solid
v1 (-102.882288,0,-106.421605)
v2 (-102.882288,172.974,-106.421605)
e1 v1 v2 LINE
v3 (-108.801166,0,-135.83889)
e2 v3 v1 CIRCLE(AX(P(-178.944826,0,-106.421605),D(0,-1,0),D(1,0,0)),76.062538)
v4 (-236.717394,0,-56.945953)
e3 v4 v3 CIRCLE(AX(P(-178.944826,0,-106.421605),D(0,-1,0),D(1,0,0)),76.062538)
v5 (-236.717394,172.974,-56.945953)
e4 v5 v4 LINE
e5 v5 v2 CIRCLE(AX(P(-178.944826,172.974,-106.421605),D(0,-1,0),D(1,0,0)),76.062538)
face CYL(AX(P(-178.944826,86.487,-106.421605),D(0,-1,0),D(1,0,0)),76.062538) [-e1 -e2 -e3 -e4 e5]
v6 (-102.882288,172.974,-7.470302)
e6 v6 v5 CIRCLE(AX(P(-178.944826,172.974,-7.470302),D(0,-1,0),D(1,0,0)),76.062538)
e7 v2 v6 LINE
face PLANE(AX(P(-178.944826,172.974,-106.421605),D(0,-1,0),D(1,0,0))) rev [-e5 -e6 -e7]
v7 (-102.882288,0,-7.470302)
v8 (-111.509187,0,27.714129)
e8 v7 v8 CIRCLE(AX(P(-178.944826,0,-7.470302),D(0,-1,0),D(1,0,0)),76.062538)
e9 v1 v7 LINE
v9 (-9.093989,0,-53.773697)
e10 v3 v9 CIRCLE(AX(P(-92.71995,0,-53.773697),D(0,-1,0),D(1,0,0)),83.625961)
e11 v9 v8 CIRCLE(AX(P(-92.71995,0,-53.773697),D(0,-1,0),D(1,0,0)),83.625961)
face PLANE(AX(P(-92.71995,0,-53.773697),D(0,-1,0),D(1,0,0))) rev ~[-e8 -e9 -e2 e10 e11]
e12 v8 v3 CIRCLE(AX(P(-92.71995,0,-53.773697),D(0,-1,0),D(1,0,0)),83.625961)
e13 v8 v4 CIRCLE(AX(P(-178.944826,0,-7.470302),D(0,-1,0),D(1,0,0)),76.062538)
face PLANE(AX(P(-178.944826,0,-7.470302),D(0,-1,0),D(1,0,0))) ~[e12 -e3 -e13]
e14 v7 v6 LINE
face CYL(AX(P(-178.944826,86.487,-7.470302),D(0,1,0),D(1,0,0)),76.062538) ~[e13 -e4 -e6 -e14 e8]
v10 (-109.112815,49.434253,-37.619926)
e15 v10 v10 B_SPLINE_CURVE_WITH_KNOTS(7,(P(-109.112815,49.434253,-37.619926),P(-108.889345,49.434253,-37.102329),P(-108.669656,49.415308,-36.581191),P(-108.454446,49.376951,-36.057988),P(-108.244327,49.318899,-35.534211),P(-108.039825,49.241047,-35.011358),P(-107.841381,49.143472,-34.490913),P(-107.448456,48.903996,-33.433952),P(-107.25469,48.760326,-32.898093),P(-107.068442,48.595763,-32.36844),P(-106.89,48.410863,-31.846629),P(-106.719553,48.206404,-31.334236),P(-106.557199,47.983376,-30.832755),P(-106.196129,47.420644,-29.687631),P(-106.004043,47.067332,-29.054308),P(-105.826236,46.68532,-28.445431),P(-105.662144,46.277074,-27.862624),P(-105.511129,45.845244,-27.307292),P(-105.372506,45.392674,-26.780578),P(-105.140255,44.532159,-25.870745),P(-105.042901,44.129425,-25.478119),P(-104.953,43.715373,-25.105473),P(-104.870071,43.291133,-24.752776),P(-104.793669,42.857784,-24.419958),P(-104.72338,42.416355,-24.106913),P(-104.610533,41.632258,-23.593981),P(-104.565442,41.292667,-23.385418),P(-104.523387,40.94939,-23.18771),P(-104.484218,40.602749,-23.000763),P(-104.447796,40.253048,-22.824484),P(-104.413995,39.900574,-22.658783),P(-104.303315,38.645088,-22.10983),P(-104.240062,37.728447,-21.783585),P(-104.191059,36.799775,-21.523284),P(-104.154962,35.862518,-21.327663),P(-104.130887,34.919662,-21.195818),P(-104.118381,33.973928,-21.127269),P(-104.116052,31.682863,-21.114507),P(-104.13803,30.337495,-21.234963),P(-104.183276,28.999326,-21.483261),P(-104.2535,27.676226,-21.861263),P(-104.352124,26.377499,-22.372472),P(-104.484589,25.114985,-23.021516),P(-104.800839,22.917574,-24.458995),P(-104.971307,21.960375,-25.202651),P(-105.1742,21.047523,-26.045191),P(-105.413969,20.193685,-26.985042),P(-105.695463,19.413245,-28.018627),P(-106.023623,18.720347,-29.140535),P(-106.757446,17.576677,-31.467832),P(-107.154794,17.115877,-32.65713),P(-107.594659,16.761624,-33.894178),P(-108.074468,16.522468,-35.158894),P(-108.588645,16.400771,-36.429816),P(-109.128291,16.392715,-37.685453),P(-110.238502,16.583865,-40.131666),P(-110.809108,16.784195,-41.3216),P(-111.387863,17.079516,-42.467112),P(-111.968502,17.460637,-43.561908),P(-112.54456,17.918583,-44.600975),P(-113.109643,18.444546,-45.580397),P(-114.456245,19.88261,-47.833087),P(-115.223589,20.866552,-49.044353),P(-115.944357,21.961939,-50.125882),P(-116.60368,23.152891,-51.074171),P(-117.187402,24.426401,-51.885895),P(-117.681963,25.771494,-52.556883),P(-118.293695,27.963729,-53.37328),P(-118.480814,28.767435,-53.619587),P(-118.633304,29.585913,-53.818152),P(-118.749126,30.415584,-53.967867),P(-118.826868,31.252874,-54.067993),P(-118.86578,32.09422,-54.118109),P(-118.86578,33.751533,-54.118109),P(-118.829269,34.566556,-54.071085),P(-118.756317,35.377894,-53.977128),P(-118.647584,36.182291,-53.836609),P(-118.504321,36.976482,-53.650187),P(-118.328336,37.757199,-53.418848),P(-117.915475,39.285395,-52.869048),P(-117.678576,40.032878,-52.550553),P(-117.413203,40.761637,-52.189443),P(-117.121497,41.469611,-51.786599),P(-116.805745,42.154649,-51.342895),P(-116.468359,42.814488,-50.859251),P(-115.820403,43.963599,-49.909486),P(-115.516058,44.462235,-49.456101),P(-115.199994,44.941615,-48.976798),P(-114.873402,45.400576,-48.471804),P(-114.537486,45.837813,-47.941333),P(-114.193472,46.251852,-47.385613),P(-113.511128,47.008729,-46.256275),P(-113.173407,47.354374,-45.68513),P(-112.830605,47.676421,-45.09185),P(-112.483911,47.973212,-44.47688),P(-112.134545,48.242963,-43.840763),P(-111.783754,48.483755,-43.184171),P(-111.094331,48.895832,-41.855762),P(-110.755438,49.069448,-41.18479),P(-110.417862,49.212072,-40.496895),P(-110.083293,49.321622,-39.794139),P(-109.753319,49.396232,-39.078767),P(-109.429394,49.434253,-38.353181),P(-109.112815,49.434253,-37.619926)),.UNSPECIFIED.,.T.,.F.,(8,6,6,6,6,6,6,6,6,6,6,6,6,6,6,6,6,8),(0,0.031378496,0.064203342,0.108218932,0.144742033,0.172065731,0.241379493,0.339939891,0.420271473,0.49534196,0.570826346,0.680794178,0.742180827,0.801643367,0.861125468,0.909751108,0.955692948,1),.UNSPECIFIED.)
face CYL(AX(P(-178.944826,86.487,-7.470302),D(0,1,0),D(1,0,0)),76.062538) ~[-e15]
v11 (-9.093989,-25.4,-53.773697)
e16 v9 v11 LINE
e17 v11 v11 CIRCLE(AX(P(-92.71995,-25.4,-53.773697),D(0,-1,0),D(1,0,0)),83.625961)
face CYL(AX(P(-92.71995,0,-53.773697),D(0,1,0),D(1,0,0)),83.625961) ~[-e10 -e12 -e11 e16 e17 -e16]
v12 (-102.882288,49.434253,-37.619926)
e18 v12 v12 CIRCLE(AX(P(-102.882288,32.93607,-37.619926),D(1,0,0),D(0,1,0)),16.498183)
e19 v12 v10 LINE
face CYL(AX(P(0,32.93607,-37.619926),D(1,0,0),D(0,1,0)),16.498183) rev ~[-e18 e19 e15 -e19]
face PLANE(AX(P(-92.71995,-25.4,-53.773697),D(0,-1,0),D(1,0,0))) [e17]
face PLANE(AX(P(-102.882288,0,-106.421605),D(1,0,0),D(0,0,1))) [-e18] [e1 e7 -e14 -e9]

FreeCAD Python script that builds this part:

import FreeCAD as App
import Part
import Sketcher

V = App.Vector
Q = App.Units.Quantity


def add_polygon(sketch, points):
    """Adds a closed chain of lines whose ends are joined by coincident constraints."""
    first, n = sketch.GeometryCount, len(points)
    for a, b in zip(points, points[1:] + points[:1]):
        sketch.addGeometry(Part.LineSegment(App.Vector(*a, 0), App.Vector(*b, 0)), False)
    for i in range(n):
        sketch.addConstraint(Sketcher.Constraint("Coincident", first + i, 2, first + (i + 1) % n, 1))

doc = App.newDocument("Part")
body = doc.addObject("PartDesign::Body", "Body")

# Sketch on XZ plane
sketch1 = body.newObject("Sketcher::SketchObject", "Sketch")
sketch1.AttachmentSupport = (doc.getObject("XZ_Plane"), [""])
sketch1.MapMode = "FlatFace"
add_polygon(sketch1, [(-179, -7), (-179, -106), (-103, -106), (-103, -7)])  # lines 0-3
sketch1.addConstraint([
    Sketcher.Constraint("Vertical", 0),
    Sketcher.Constraint("Horizontal", 1),
    Sketcher.Constraint("Vertical", 2),
    Sketcher.Constraint("Horizontal", 3),
    Sketcher.Constraint("DistanceY", 2, 2, -1, 1, 7.470302),
    Sketcher.Constraint("DistanceX", 1, 1, 1, 2, 76.062538),
    Sketcher.Constraint("DistanceY", 0, 2, 0, 1, 98.951303),
    Sketcher.Constraint("DistanceX", 1, 2, -1, 1, 102.882288),
])
pad1 = body.newObject("PartDesign::Pad", "Pad")
pad1.Profile = sketch1
pad1.Length = Q("6.81 in")
pad1.Reversed = True

# Sketch on YZ plane
sketch2 = body.newObject("Sketcher::SketchObject", "Sketch001")
sketch2.AttachmentSupport = (doc.getObject("YZ_Plane"), [""])
sketch2.MapMode = "FlatFace"
sketch2.addGeometry(Part.Circle(V(33, -38, 0), V(0, 0, 1), 16), False)
sketch2.addConstraint([
    Sketcher.Constraint("Diameter", 0, 32.996365),
    Sketcher.Constraint("DistanceX", -1, 1, 0, 3, 32.93607),
    Sketcher.Constraint("DistanceY", 0, 3, -1, 1, 37.619926),
])
pocket1 = body.newObject("PartDesign::Pocket", "Pocket")
pocket1.Profile = sketch2
pocket1.Length = Q("8.17 in")

# Sketch on XY plane
sketch3 = body.newObject("Sketcher::SketchObject", "Sketch002")
sketch3.AttachmentSupport = (doc.getObject("XY_Plane"), [""])
sketch3.MapMode = "FlatFace"
sketch3.AttachmentOffset = App.Placement(V(0, 0, -106.421605), App.Rotation())
add_polygon(sketch3, [(-179, 0), (-179, 173), (-103, 173), (-103, 0)])  # lines 0-3
sketch3.addGeometry(Part.LineSegment(V(-179, 173, 0), V(-179, 0, 0)), True)  # axis
sketch3.addConstraint([
    Sketcher.Constraint("Vertical", 0),
    Sketcher.Constraint("Horizontal", 1),
    Sketcher.Constraint("Vertical", 2),
    Sketcher.Constraint("Horizontal", 3),
    Sketcher.Constraint("Vertical", 4),
    Sketcher.Constraint("Coincident", 4, 1, 0, 2),
    Sketcher.Constraint("PointOnObject", 2, 2, -1),
    Sketcher.Constraint("PointOnObject", 4, 2, -1),
    Sketcher.Constraint("DistanceY", 0, 1, 0, 2, Q("6.81 in")),
    Sketcher.Constraint("DistanceX", 1, 1, 1, 2, 76.062538),
    Sketcher.Constraint("DistanceX", 1, 2, -1, 1, 102.882288),
])
revolution = body.newObject("PartDesign::Revolution", "Revolution")
revolution.Profile = sketch3
revolution.ReferenceAxis = (sketch3, ["Axis0"])
revolution.Angle = 360

# Sketch on XY plane
sketch4 = body.newObject("Sketcher::SketchObject", "Sketch003")
sketch4.AttachmentSupport = (doc.getObject("XY_Plane"), [""])
sketch4.MapMode = "FlatFace"
sketch4.AttachmentOffset = App.Placement(V(0, 0, -7.470302), App.Rotation())
add_polygon(sketch4, [(-179, 173), (-179, 0), (-103, 0), (-103, 173)])  # lines 0-3
sketch4.addGeometry(Part.LineSegment(V(-179, 173, 0), V(-179, 0, 0)), True)  # axis
sketch4.addConstraint([
    Sketcher.Constraint("Vertical", 0),
    Sketcher.Constraint("Horizontal", 1),
    Sketcher.Constraint("Vertical", 2),
    Sketcher.Constraint("Horizontal", 3),
    Sketcher.Constraint("Vertical", 4),
    Sketcher.Constraint("Coincident", 4, 1, 3, 2),
    Sketcher.Constraint("PointOnObject", 0, 2, -1),
    Sketcher.Constraint("PointOnObject", 4, 2, -1),
    Sketcher.Constraint("DistanceY", 0, 2, 0, 1, Q("6.81 in")),
    Sketcher.Constraint("DistanceX", 1, 1, 1, 2, 76.062538),
    Sketcher.Constraint("DistanceX", 1, 2, -1, 1, 102.882288),
])
revolution2 = body.newObject("PartDesign::Revolution", "Revolution001")
revolution2.Profile = sketch4
revolution2.ReferenceAxis = (sketch4, ["Axis0"])
revolution2.Angle = 360

# Sketch on XZ plane
sketch5 = body.newObject("Sketcher::SketchObject", "Sketch004")
sketch5.AttachmentSupport = (doc.getObject("XZ_Plane"), [""])
sketch5.MapMode = "FlatFace"
sketch5.addGeometry(Part.Circle(V(-93, -54, 0), V(0, 0, 1), 84), False)
sketch5.addConstraint([
    Sketcher.Constraint("Diameter", 0, 167.251921),
    Sketcher.Constraint("DistanceX", 0, 3, -1, 1, 92.71995),
    Sketcher.Constraint("DistanceY", 0, 3, -1, 1, 53.773697),
])
pad2 = body.newObject("PartDesign::Pad", "Pad001")
pad2.Profile = sketch5
pad2.Length = Q("1 in")

doc.recompute()
